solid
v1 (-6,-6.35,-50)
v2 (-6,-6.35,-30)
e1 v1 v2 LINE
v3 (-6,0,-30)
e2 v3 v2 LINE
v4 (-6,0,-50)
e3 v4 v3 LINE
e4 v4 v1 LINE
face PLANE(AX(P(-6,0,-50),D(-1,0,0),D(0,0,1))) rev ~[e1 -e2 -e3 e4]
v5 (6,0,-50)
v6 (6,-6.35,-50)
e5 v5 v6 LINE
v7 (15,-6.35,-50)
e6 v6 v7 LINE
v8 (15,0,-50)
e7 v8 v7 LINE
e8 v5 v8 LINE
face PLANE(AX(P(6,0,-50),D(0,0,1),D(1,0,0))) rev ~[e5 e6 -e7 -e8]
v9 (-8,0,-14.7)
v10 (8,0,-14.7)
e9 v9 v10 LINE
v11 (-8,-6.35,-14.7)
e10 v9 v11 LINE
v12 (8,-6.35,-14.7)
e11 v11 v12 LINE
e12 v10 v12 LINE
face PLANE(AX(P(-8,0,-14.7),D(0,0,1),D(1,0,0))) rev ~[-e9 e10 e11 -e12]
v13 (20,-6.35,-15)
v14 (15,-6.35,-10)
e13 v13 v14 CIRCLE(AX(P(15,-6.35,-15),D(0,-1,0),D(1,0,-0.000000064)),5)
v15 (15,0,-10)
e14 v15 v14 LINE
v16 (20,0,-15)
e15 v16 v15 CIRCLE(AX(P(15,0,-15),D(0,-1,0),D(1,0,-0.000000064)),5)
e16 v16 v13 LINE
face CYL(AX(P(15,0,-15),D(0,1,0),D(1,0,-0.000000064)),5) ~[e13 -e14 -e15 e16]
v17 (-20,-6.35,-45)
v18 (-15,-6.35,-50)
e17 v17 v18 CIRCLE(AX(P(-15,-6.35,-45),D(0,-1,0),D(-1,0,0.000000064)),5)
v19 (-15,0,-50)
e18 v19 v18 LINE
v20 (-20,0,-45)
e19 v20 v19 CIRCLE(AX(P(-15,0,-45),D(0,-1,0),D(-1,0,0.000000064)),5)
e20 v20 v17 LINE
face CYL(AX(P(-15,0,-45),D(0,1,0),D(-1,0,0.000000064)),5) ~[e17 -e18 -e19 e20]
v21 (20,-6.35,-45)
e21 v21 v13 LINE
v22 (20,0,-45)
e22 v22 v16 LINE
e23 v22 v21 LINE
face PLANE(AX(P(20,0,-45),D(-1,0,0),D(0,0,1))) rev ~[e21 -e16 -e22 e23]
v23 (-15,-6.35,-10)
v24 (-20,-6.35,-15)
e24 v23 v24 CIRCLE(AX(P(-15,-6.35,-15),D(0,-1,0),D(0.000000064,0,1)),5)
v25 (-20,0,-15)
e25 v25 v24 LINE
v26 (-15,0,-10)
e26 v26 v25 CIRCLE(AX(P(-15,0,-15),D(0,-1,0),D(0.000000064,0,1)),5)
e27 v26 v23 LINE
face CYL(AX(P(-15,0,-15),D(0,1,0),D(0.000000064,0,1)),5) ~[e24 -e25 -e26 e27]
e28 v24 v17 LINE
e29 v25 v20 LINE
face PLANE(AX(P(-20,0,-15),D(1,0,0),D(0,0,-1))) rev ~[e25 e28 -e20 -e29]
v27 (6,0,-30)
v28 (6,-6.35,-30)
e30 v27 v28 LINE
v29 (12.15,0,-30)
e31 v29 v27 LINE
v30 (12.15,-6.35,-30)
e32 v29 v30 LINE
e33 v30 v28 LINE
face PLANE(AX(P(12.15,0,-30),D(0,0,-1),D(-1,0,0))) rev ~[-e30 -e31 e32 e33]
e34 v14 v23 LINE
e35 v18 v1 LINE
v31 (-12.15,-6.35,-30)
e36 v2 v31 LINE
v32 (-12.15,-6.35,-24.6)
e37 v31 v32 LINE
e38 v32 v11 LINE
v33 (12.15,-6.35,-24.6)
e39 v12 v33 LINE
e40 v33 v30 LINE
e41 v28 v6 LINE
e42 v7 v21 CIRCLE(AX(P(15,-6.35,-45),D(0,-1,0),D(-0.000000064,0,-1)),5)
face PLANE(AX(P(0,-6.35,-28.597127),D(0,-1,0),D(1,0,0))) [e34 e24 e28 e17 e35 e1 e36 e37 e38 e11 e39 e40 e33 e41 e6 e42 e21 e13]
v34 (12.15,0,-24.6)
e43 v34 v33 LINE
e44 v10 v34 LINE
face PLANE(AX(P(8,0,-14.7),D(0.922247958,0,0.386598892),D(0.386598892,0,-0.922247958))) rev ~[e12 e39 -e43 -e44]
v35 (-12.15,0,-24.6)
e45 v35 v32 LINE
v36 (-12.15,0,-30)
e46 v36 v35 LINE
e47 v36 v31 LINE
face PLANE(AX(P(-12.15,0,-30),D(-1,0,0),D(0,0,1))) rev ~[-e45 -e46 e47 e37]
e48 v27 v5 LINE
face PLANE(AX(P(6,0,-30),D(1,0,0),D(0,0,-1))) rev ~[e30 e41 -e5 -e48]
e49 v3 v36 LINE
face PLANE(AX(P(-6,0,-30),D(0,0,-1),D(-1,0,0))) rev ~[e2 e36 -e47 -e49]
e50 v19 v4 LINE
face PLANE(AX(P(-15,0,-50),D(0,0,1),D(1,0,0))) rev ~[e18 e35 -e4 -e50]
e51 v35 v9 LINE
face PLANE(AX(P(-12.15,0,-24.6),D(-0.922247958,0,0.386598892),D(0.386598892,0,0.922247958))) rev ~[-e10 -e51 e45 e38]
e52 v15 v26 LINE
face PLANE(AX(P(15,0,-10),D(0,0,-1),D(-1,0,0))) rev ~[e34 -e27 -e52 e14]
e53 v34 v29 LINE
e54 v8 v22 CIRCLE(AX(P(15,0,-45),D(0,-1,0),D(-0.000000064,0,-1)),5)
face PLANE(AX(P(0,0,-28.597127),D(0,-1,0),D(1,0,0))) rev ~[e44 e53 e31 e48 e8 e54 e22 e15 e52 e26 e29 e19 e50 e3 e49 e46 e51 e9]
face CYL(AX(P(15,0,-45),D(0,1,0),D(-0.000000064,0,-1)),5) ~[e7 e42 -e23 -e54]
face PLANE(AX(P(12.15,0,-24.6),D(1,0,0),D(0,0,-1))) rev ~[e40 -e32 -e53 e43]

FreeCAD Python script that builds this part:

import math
import FreeCAD as App
import Part
import Sketcher
from FreeCAD import Vector

doc = App.newDocument("Part")
body = doc.addObject("PartDesign::Body", "Body")

# Sketch on XZ plane
sketch1 = doc.addObject("Sketcher::SketchObject", "Sketch")
body.addObject(sketch1)
sketch1.AttachmentSupport = (doc.XZ_Plane, [""])
sketch1.MapMode = "FlatFace"
sketch1.addGeometry([
    Part.LineSegment(Vector(-12.2, -24.6, 0), Vector(-8, -14.7, 0)),  # 0
    Part.LineSegment(Vector(-8, -14.7, 0), Vector(8, -14.7, 0)),  # 1
    Part.LineSegment(Vector(8, -14.7, 0), Vector(12.2, -24.6, 0)),  # 2
    Part.LineSegment(Vector(12.2, -24.6, 0), Vector(12.2, -30, 0)),  # 3
    Part.LineSegment(Vector(12.2, -30, 0), Vector(6, -30, 0)),  # 4
    Part.LineSegment(Vector(6, -30, 0), Vector(6, -50, 0)),  # 5
    Part.LineSegment(Vector(6, -50, 0), Vector(15, -50, 0)),  # 6
    Part.ArcOfCircle(Part.Circle(Vector(15, -45, 0), Vector(0, 0, 1), 5), math.radians(-90), math.radians(0)),  # 7
    Part.LineSegment(Vector(20, -45, 0), Vector(20, -15, 0)),  # 8
    Part.ArcOfCircle(Part.Circle(Vector(15, -15, 0), Vector(0, 0, 1), 5), math.radians(0), math.radians(90)),  # 9
    Part.LineSegment(Vector(15, -10, 0), Vector(-15, -10, 0)),  # 10
    Part.ArcOfCircle(Part.Circle(Vector(-15, -15, 0), Vector(0, 0, 1), 5), math.radians(90), math.radians(180)),  # 11
    Part.LineSegment(Vector(-20, -15, 0), Vector(-20, -45, 0)),  # 12
    Part.ArcOfCircle(Part.Circle(Vector(-15, -45, 0), Vector(0, 0, 1), 5), math.radians(180), math.radians(270)),  # 13
    Part.LineSegment(Vector(-15, -50, 0), Vector(-6, -50, 0)),  # 14
    Part.LineSegment(Vector(-6, -50, 0), Vector(-6, -30, 0)),  # 15
    Part.LineSegment(Vector(-6, -30, 0), Vector(-12.2, -30, 0)),  # 16
    Part.LineSegment(Vector(-12.2, -30, 0), Vector(-12.2, -24.6, 0)),  # 17
], False)
sketch1.addConstraint([
    Sketcher.Constraint("Coincident", 0, 2, 1, 1),
    Sketcher.Constraint("Coincident", 1, 2, 2, 1),
    Sketcher.Constraint("Coincident", 2, 2, 3, 1),
    Sketcher.Constraint("Coincident", 3, 2, 4, 1),
    Sketcher.Constraint("Coincident", 4, 2, 5, 1),
    Sketcher.Constraint("Coincident", 5, 2, 6, 1),
    Sketcher.Constraint("Tangent", 6, 2, 7, 1),
    Sketcher.Constraint("Tangent", 7, 2, 8, 1),
    Sketcher.Constraint("Tangent", 8, 2, 9, 1),
    Sketcher.Constraint("Tangent", 9, 2, 10, 1),
    Sketcher.Constraint("Tangent", 10, 2, 11, 1),
    Sketcher.Constraint("Tangent", 11, 2, 12, 1),
    Sketcher.Constraint("Tangent", 12, 2, 13, 1),
    Sketcher.Constraint("Tangent", 13, 2, 14, 1),
    Sketcher.Constraint("Coincident", 14, 2, 15, 1),
    Sketcher.Constraint("Coincident", 15, 2, 16, 1),
    Sketcher.Constraint("Coincident", 16, 2, 17, 1),
    Sketcher.Constraint("Coincident", 17, 2, 0, 1),
    Sketcher.Constraint("Horizontal", 1),
    Sketcher.Constraint("Vertical", 3),
    Sketcher.Constraint("Horizontal", 4),
    Sketcher.Constraint("Vertical", 5),
    Sketcher.Constraint("Horizontal", 6),
    Sketcher.Constraint("Vertical", 8),
    Sketcher.Constraint("Horizontal", 10),
    Sketcher.Constraint("Vertical", 12),
    Sketcher.Constraint("Horizontal", 14),
    Sketcher.Constraint("Vertical", 15),
    Sketcher.Constraint("Horizontal", 16),
    Sketcher.Constraint("Vertical", 17),
    Sketcher.Constraint("Equal", 7, 9),
    Sketcher.Constraint("Equal", 9, 11),
    Sketcher.Constraint("Equal", 11, 13),
    Sketcher.Constraint("Symmetric", 7, 3, 13, 3, -2),
    Sketcher.Constraint("Symmetric", 4, 2, 15, 2, -2),
    Sketcher.Constraint("Symmetric", 2, 2, 17, 2, -2),
    Sketcher.Constraint("Equal", 10, 8),
    Sketcher.Constraint("Equal", 0, 2),
    Sketcher.Constraint("Radius", 7, 5.0),
    Sketcher.Constraint("DistanceX", 1, 1, 1, 2, 16.0),
    Sketcher.Constraint("DistanceX", 6, 1, 6, 2, 9.0),
    Sketcher.Constraint("DistanceX", 10, 2, 10, 1, 30.0),
    Sketcher.Constraint("DistanceY", 5, 2, 5, 1, 20.0),
    Sketcher.Constraint("DistanceY", 3, 2, 3, 1, 5.4),
    Sketcher.Constraint("DistanceY", 7, 3, -1, 1, 45.0),
    Sketcher.Constraint("DistanceX", 4, 2, 4, 1, 6.15),
    Sketcher.Constraint("DistanceY", 0, 2, -1, 1, 14.7),
])
pad1 = doc.addObject("PartDesign::Pad", "Pad")
body.addObject(pad1)
pad1.Profile = sketch1
pad1.Length = 6.35

doc.recompute()
